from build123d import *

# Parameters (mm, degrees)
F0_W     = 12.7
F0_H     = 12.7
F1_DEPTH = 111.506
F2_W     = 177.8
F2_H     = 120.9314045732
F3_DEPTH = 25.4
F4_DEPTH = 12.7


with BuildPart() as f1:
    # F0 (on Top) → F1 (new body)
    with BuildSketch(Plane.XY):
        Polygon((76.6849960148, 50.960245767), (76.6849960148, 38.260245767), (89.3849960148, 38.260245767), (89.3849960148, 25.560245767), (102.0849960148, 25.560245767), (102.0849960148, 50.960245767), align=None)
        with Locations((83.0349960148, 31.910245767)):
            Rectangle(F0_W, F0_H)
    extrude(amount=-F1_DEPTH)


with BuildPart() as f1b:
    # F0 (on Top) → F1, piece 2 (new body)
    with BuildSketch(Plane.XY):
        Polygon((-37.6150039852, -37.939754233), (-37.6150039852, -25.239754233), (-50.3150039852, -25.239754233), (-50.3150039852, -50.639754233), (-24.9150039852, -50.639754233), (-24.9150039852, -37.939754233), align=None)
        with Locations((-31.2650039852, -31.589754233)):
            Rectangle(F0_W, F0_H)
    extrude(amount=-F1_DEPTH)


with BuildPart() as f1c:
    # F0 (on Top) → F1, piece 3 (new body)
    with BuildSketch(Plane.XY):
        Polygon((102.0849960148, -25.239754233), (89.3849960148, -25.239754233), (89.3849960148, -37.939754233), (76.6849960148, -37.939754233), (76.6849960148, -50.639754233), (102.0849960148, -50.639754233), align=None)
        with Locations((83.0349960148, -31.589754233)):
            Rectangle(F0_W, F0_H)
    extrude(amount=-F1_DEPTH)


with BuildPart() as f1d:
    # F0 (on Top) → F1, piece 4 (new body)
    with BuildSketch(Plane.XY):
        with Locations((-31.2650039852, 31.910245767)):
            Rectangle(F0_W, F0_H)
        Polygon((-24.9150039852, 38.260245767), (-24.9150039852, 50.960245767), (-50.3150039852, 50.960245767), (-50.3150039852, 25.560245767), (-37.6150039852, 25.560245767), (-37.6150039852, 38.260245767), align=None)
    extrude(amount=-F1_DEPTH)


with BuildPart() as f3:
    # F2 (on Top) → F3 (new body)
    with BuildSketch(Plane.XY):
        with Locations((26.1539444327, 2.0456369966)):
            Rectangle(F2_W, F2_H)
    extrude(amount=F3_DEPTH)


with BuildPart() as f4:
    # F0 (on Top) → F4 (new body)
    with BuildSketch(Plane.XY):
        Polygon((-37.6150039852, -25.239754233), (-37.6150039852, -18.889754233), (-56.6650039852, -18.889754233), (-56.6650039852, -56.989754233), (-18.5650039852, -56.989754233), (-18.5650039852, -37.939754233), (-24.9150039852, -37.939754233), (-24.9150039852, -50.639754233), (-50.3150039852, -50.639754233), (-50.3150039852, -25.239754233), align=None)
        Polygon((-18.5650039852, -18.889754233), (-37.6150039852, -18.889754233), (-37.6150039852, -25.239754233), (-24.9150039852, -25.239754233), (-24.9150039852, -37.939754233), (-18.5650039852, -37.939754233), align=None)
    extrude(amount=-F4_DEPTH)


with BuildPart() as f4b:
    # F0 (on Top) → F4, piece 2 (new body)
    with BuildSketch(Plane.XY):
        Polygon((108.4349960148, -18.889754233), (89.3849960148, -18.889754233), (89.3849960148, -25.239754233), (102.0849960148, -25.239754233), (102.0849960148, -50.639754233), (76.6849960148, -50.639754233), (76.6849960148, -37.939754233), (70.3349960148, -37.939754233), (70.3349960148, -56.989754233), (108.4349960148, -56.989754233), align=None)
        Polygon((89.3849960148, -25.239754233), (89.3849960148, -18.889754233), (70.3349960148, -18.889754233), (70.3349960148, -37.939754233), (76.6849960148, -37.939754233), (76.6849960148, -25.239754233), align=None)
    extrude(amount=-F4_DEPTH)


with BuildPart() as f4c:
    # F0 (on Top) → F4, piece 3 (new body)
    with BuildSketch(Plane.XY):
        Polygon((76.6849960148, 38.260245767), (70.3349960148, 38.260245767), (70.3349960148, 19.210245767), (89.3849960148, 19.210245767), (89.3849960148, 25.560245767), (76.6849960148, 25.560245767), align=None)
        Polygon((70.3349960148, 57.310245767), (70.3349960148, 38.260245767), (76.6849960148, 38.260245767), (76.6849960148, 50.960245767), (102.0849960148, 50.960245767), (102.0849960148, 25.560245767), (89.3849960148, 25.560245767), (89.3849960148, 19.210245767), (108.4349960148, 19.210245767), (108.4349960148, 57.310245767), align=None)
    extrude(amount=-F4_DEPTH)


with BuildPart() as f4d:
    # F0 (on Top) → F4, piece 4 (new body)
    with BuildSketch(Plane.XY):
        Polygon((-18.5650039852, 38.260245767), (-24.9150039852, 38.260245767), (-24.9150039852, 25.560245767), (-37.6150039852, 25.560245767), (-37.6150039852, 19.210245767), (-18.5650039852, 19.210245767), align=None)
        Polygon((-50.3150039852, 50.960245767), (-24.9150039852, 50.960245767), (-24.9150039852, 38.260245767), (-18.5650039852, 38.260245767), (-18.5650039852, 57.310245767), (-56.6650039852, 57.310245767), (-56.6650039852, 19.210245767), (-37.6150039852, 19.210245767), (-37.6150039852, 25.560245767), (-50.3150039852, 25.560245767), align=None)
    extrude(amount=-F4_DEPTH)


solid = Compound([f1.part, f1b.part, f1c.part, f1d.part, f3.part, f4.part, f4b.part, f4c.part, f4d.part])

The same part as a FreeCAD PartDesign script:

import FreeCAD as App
import Part
import Sketcher
from FreeCAD import Vector
Q = App.Units.Quantity


def add_polygon(sketch, points):
    """Adds a closed chain of lines whose ends are joined by coincident constraints."""
    first, n = sketch.GeometryCount, len(points)
    for a, b in zip(points, points[1:] + points[:1]):
        sketch.addGeometry(Part.LineSegment(App.Vector(*a, 0), App.Vector(*b, 0)), False)
    for i in range(n):
        sketch.addConstraint(Sketcher.Constraint("Coincident", first + i, 2, first + (i + 1) % n, 1))

doc = App.newDocument("Part")
body = doc.addObject("PartDesign::Body", "Body")

sketch1 = body.newObject("Sketcher::SketchObject", "Sketch")
sketch1.AttachmentSupport = (doc.getObject("XY_Plane"), [""])
sketch1.MapMode = "FlatFace"
add_polygon(sketch1, [(77, 51), (77, 26), (102, 26), (102, 51)])
sketch1.addConstraint([
    Sketcher.Constraint("Vertical", 0),
    Sketcher.Constraint("Horizontal", 1),
    Sketcher.Constraint("Vertical", 2),
    Sketcher.Constraint("Horizontal", 3),
    Sketcher.Constraint("Equal", 3, 0),
    Sketcher.Constraint("DistanceX", 1, 1, 1, 2, Q("1 in")),
    Sketcher.Constraint("DistanceX", -1, 1, 0, 2, Q("76.684996 mm")),
    Sketcher.Constraint("DistanceY", -1, 1, 0, 2, Q("25.560246 mm")),
])
pad1 = body.newObject("PartDesign::Pad", "Pad")
pad1.Profile = sketch1
pad1.Length = Q("4.39 in")
pad1.Reversed = True
body2 = doc.addObject("PartDesign::Body", "Body001")

sketch2 = body2.newObject("Sketcher::SketchObject", "Sketch001")
sketch2.AttachmentSupport = (doc.getObject("XY_Plane001"), [""])
sketch2.MapMode = "FlatFace"
add_polygon(sketch2, [(-50, -25), (-50, -51), (-25, -51), (-25, -25)])
sketch2.addConstraint([
    Sketcher.Constraint("Vertical", 0),
    Sketcher.Constraint("Horizontal", 1),
    Sketcher.Constraint("Vertical", 2),
    Sketcher.Constraint("Horizontal", 3),
    Sketcher.Constraint("Equal", 3, 0),
    Sketcher.Constraint("DistanceX", 1, 1, 1, 2, Q("1 in")),
    Sketcher.Constraint("DistanceX", 0, 2, -1, 1, Q("50.315004 mm")),
    Sketcher.Constraint("DistanceY", 0, 2, -1, 1, Q("50.639754 mm")),
])
pad2 = body2.newObject("PartDesign::Pad", "Pad001")
pad2.Profile = sketch2
pad2.Length = Q("4.39 in")
pad2.Reversed = True
body3 = doc.addObject("PartDesign::Body", "Body002")

sketch3 = body3.newObject("Sketcher::SketchObject", "Sketch002")
sketch3.AttachmentSupport = (doc.getObject("XY_Plane002"), [""])
sketch3.MapMode = "FlatFace"
add_polygon(sketch3, [(102, -25), (77, -25), (77, -51), (102, -51)])
sketch3.addConstraint([
    Sketcher.Constraint("Horizontal", 0),
    Sketcher.Constraint("Vertical", 1),
    Sketcher.Constraint("Horizontal", 2),
    Sketcher.Constraint("Vertical", 3),
    Sketcher.Constraint("Equal", 2, 1),
    Sketcher.Constraint("DistanceX", 0, 2, 0, 1, Q("1 in")),
    Sketcher.Constraint("DistanceX", -1, 1, 0, 2, Q("76.684996 mm")),
    Sketcher.Constraint("DistanceY", 0, 2, -1, 1, Q("25.239754 mm")),
])
pad3 = body3.newObject("PartDesign::Pad", "Pad002")
pad3.Profile = sketch3
pad3.Length = Q("4.39 in")
pad3.Reversed = True
body4 = doc.addObject("PartDesign::Body", "Body003")

sketch4 = body4.newObject("Sketcher::SketchObject", "Sketch003")
sketch4.AttachmentSupport = (doc.getObject("XY_Plane003"), [""])
sketch4.MapMode = "FlatFace"
add_polygon(sketch4, [(-25, 26), (-25, 51), (-50, 51), (-50, 26)])
sketch4.addConstraint([
    Sketcher.Constraint("Vertical", 0),
    Sketcher.Constraint("Horizontal", 1),
    Sketcher.Constraint("Vertical", 2),
    Sketcher.Constraint("Horizontal", 3),
    Sketcher.Constraint("Equal", 3, 0),
    Sketcher.Constraint("DistanceX", 1, 2, 1, 1, Q("1 in")),
    Sketcher.Constraint("DistanceX", 0, 2, -1, 1, Q("24.915004 mm")),
    Sketcher.Constraint("DistanceY", -1, 1, 0, 2, Q("50.960246 mm")),
])
pad4 = body4.newObject("PartDesign::Pad", "Pad003")
pad4.Profile = sketch4
pad4.Length = Q("4.39 in")
pad4.Reversed = True
body5 = doc.addObject("PartDesign::Body", "Body004")

sketch5 = body5.newObject("Sketcher::SketchObject", "Sketch004")
sketch5.AttachmentSupport = (doc.getObject("XY_Plane004"), [""])
sketch5.MapMode = "FlatFace"
add_polygon(sketch5, [(-63, 63), (-63, -58), (115, -58), (115, 63)])
sketch5.addConstraint([
    Sketcher.Constraint("Vertical", 0),
    Sketcher.Constraint("Horizontal", 1),
    Sketcher.Constraint("Vertical", 2),
    Sketcher.Constraint("Horizontal", 3),
    Sketcher.Constraint("DistanceX", 1, 1, 1, 2, Q("7 in")),
    Sketcher.Constraint("DistanceY", 0, 2, 0, 1, Q("120.931405 mm")),
    Sketcher.Constraint("DistanceY", -1, 1, 2, 2, Q("62.511339 mm")),
    Sketcher.Constraint("DistanceX", 0, 2, -1, 1, Q("62.746056 mm")),
])
pad5 = body5.newObject("PartDesign::Pad", "Pad004")
pad5.Profile = sketch5
pad5.Length = Q("1 in")
body6 = doc.addObject("PartDesign::Body", "Body005")

sketch6 = body6.newObject("Sketcher::SketchObject", "Sketch005")
sketch6.AttachmentSupport = (doc.getObject("XY_Plane005"), [""])
sketch6.MapMode = "FlatFace"
add_polygon(sketch6, [(-57, -19), (-57, -57), (-19, -57), (-19, -19)])
add_polygon(sketch6, [(-25, -51), (-50, -51), (-50, -25), (-25, -25)])
sketch6.addConstraint([
    Sketcher.Constraint("Vertical", 0),
    Sketcher.Constraint("Horizontal", 1),
    Sketcher.Constraint("Vertical", 2),
    Sketcher.Constraint("Horizontal", 3),
    Sketcher.Constraint("Horizontal", 4),
    Sketcher.Constraint("Vertical", 5),
    Sketcher.Constraint("Horizontal", 6),
    Sketcher.Constraint("Vertical", 7),
    Sketcher.Constraint("Equal", 3, 0),
    Sketcher.Constraint("Equal", 6, 5),
    Sketcher.Constraint("DistanceX", 4, 2, 4, 1, Q("1 in")),
    Sketcher.Constraint("DistanceX", 1, 1, 1, 2, Q("1.5 in")),
    Sketcher.Constraint("DistanceX", 0, 2, 4, 2, Q("0.25 in")),
    Sketcher.Constraint("DistanceY", 0, 2, 4, 2, Q("0.25 in")),
    Sketcher.Constraint("DistanceX", 0, 2, -1, 1, Q("56.665004 mm")),
    Sketcher.Constraint("DistanceY", 0, 2, -1, 1, Q("56.989754 mm")),
])
pad6 = body6.newObject("PartDesign::Pad", "Pad005")
pad6.Profile = sketch6
pad6.Length = Q("0.5 in")
pad6.Reversed = True
body7 = doc.addObject("PartDesign::Body", "Body006")

sketch7 = body7.newObject("Sketcher::SketchObject", "Sketch006")
sketch7.AttachmentSupport = (doc.getObject("XY_Plane006"), [""])
sketch7.MapMode = "FlatFace"
add_polygon(sketch7, [(108, -19), (70, -19), (70, -57), (108, -57)])
add_polygon(sketch7, [(102, -25), (102, -51), (77, -51), (77, -25)])
sketch7.addConstraint([
    Sketcher.Constraint("Horizontal", 0),
    Sketcher.Constraint("Vertical", 1),
    Sketcher.Constraint("Horizontal", 2),
    Sketcher.Constraint("Vertical", 3),
    Sketcher.Constraint("Vertical", 4),
    Sketcher.Constraint("Horizontal", 5),
    Sketcher.Constraint("Vertical", 6),
    Sketcher.Constraint("Horizontal", 7),
    Sketcher.Constraint("Equal", 2, 1),
    Sketcher.Constraint("Equal", 7, 4),
    Sketcher.Constraint("DistanceX", 5, 2, 5, 1, Q("1 in")),
    Sketcher.Constraint("DistanceX", 0, 2, 0, 1, Q("1.5 in")),
    Sketcher.Constraint("DistanceX", 4, 2, 2, 2, Q("0.25 in")),
    Sketcher.Constraint("DistanceY", 2, 2, 4, 2, Q("0.25 in")),
    Sketcher.Constraint("DistanceX", -1, 1, 0, 2, Q("70.334996 mm")),
    Sketcher.Constraint("DistanceY", 0, 2, -1, 1, Q("18.889754 mm")),
])
pad7 = body7.newObject("PartDesign::Pad", "Pad006")
pad7.Profile = sketch7
pad7.Length = Q("0.5 in")
pad7.Reversed = True
body8 = doc.addObject("PartDesign::Body", "Body007")

sketch8 = body8.newObject("Sketcher::SketchObject", "Sketch007")
sketch8.AttachmentSupport = (doc.getObject("XY_Plane007"), [""])
sketch8.MapMode = "FlatFace"
add_polygon(sketch8, [(70, 19), (108, 19), (108, 57), (70, 57)])
add_polygon(sketch8, [(77, 26), (77, 51), (102, 51), (102, 26)])
sketch8.addConstraint([
    Sketcher.Constraint("Horizontal", 0),
    Sketcher.Constraint("Vertical", 1),
    Sketcher.Constraint("Horizontal", 2),
    Sketcher.Constraint("Vertical", 3),
    Sketcher.Constraint("Vertical", 4),
    Sketcher.Constraint("Horizontal", 5),
    Sketcher.Constraint("Vertical", 6),
    Sketcher.Constraint("Horizontal", 7),
    Sketcher.Constraint("Equal", 2, 1),
    Sketcher.Constraint("Equal", 7, 4),
    Sketcher.Constraint("DistanceX", 5, 1, 5, 2, Q("1 in")),
    Sketcher.Constraint("DistanceX", 0, 1, 0, 2, Q("1.5 in")),
    Sketcher.Constraint("DistanceX", 2, 2, 4, 2, Q("0.25 in")),
    Sketcher.Constraint("DistanceY", 4, 2, 2, 2, Q("0.25 in")),
    Sketcher.Constraint("DistanceX", -1, 1, 0, 2, Q("108.434996 mm")),
    Sketcher.Constraint("DistanceY", -1, 1, 0, 2, Q("19.210246 mm")),
])
pad8 = body8.newObject("PartDesign::Pad", "Pad007")
pad8.Profile = sketch8
pad8.Length = Q("0.5 in")
pad8.Reversed = True
body9 = doc.addObject("PartDesign::Body", "Body008")

sketch9 = body9.newObject("Sketcher::SketchObject", "Sketch008")
sketch9.AttachmentSupport = (doc.getObject("XY_Plane008"), [""])
sketch9.MapMode = "FlatFace"
add_polygon(sketch9, [(-19, 19), (-19, 57), (-57, 57), (-57, 19)])
add_polygon(sketch9, [(-25, 26), (-50, 26), (-50, 51), (-25, 51)])
sketch9.addConstraint([
    Sketcher.Constraint("Vertical", 0),
    Sketcher.Constraint("Horizontal", 1),
    Sketcher.Constraint("Vertical", 2),
    Sketcher.Constraint("Horizontal", 3),
    Sketcher.Constraint("Horizontal", 4),
    Sketcher.Constraint("Vertical", 5),
    Sketcher.Constraint("Horizontal", 6),
    Sketcher.Constraint("Vertical", 7),
    Sketcher.Constraint("Equal", 3, 0),
    Sketcher.Constraint("Equal", 6, 5),
    Sketcher.Constraint("DistanceX", 4, 2, 4, 1, Q("1 in")),
    Sketcher.Constraint("DistanceX", 1, 2, 1, 1, Q("1.5 in")),
    Sketcher.Constraint("DistanceX", 2, 2, 4, 2, Q("0.25 in")),
    Sketcher.Constraint("DistanceY", 2, 2, 4, 2, Q("0.25 in")),
    Sketcher.Constraint("DistanceX", 0, 2, -1, 1, Q("18.565004 mm")),
    Sketcher.Constraint("DistanceY", -1, 1, 0, 2, Q("57.310246 mm")),
])
pad9 = body9.newObject("PartDesign::Pad", "Pad008")
pad9.Profile = sketch9
pad9.Length = Q("0.5 in")
pad9.Reversed = True

doc.recompute()
